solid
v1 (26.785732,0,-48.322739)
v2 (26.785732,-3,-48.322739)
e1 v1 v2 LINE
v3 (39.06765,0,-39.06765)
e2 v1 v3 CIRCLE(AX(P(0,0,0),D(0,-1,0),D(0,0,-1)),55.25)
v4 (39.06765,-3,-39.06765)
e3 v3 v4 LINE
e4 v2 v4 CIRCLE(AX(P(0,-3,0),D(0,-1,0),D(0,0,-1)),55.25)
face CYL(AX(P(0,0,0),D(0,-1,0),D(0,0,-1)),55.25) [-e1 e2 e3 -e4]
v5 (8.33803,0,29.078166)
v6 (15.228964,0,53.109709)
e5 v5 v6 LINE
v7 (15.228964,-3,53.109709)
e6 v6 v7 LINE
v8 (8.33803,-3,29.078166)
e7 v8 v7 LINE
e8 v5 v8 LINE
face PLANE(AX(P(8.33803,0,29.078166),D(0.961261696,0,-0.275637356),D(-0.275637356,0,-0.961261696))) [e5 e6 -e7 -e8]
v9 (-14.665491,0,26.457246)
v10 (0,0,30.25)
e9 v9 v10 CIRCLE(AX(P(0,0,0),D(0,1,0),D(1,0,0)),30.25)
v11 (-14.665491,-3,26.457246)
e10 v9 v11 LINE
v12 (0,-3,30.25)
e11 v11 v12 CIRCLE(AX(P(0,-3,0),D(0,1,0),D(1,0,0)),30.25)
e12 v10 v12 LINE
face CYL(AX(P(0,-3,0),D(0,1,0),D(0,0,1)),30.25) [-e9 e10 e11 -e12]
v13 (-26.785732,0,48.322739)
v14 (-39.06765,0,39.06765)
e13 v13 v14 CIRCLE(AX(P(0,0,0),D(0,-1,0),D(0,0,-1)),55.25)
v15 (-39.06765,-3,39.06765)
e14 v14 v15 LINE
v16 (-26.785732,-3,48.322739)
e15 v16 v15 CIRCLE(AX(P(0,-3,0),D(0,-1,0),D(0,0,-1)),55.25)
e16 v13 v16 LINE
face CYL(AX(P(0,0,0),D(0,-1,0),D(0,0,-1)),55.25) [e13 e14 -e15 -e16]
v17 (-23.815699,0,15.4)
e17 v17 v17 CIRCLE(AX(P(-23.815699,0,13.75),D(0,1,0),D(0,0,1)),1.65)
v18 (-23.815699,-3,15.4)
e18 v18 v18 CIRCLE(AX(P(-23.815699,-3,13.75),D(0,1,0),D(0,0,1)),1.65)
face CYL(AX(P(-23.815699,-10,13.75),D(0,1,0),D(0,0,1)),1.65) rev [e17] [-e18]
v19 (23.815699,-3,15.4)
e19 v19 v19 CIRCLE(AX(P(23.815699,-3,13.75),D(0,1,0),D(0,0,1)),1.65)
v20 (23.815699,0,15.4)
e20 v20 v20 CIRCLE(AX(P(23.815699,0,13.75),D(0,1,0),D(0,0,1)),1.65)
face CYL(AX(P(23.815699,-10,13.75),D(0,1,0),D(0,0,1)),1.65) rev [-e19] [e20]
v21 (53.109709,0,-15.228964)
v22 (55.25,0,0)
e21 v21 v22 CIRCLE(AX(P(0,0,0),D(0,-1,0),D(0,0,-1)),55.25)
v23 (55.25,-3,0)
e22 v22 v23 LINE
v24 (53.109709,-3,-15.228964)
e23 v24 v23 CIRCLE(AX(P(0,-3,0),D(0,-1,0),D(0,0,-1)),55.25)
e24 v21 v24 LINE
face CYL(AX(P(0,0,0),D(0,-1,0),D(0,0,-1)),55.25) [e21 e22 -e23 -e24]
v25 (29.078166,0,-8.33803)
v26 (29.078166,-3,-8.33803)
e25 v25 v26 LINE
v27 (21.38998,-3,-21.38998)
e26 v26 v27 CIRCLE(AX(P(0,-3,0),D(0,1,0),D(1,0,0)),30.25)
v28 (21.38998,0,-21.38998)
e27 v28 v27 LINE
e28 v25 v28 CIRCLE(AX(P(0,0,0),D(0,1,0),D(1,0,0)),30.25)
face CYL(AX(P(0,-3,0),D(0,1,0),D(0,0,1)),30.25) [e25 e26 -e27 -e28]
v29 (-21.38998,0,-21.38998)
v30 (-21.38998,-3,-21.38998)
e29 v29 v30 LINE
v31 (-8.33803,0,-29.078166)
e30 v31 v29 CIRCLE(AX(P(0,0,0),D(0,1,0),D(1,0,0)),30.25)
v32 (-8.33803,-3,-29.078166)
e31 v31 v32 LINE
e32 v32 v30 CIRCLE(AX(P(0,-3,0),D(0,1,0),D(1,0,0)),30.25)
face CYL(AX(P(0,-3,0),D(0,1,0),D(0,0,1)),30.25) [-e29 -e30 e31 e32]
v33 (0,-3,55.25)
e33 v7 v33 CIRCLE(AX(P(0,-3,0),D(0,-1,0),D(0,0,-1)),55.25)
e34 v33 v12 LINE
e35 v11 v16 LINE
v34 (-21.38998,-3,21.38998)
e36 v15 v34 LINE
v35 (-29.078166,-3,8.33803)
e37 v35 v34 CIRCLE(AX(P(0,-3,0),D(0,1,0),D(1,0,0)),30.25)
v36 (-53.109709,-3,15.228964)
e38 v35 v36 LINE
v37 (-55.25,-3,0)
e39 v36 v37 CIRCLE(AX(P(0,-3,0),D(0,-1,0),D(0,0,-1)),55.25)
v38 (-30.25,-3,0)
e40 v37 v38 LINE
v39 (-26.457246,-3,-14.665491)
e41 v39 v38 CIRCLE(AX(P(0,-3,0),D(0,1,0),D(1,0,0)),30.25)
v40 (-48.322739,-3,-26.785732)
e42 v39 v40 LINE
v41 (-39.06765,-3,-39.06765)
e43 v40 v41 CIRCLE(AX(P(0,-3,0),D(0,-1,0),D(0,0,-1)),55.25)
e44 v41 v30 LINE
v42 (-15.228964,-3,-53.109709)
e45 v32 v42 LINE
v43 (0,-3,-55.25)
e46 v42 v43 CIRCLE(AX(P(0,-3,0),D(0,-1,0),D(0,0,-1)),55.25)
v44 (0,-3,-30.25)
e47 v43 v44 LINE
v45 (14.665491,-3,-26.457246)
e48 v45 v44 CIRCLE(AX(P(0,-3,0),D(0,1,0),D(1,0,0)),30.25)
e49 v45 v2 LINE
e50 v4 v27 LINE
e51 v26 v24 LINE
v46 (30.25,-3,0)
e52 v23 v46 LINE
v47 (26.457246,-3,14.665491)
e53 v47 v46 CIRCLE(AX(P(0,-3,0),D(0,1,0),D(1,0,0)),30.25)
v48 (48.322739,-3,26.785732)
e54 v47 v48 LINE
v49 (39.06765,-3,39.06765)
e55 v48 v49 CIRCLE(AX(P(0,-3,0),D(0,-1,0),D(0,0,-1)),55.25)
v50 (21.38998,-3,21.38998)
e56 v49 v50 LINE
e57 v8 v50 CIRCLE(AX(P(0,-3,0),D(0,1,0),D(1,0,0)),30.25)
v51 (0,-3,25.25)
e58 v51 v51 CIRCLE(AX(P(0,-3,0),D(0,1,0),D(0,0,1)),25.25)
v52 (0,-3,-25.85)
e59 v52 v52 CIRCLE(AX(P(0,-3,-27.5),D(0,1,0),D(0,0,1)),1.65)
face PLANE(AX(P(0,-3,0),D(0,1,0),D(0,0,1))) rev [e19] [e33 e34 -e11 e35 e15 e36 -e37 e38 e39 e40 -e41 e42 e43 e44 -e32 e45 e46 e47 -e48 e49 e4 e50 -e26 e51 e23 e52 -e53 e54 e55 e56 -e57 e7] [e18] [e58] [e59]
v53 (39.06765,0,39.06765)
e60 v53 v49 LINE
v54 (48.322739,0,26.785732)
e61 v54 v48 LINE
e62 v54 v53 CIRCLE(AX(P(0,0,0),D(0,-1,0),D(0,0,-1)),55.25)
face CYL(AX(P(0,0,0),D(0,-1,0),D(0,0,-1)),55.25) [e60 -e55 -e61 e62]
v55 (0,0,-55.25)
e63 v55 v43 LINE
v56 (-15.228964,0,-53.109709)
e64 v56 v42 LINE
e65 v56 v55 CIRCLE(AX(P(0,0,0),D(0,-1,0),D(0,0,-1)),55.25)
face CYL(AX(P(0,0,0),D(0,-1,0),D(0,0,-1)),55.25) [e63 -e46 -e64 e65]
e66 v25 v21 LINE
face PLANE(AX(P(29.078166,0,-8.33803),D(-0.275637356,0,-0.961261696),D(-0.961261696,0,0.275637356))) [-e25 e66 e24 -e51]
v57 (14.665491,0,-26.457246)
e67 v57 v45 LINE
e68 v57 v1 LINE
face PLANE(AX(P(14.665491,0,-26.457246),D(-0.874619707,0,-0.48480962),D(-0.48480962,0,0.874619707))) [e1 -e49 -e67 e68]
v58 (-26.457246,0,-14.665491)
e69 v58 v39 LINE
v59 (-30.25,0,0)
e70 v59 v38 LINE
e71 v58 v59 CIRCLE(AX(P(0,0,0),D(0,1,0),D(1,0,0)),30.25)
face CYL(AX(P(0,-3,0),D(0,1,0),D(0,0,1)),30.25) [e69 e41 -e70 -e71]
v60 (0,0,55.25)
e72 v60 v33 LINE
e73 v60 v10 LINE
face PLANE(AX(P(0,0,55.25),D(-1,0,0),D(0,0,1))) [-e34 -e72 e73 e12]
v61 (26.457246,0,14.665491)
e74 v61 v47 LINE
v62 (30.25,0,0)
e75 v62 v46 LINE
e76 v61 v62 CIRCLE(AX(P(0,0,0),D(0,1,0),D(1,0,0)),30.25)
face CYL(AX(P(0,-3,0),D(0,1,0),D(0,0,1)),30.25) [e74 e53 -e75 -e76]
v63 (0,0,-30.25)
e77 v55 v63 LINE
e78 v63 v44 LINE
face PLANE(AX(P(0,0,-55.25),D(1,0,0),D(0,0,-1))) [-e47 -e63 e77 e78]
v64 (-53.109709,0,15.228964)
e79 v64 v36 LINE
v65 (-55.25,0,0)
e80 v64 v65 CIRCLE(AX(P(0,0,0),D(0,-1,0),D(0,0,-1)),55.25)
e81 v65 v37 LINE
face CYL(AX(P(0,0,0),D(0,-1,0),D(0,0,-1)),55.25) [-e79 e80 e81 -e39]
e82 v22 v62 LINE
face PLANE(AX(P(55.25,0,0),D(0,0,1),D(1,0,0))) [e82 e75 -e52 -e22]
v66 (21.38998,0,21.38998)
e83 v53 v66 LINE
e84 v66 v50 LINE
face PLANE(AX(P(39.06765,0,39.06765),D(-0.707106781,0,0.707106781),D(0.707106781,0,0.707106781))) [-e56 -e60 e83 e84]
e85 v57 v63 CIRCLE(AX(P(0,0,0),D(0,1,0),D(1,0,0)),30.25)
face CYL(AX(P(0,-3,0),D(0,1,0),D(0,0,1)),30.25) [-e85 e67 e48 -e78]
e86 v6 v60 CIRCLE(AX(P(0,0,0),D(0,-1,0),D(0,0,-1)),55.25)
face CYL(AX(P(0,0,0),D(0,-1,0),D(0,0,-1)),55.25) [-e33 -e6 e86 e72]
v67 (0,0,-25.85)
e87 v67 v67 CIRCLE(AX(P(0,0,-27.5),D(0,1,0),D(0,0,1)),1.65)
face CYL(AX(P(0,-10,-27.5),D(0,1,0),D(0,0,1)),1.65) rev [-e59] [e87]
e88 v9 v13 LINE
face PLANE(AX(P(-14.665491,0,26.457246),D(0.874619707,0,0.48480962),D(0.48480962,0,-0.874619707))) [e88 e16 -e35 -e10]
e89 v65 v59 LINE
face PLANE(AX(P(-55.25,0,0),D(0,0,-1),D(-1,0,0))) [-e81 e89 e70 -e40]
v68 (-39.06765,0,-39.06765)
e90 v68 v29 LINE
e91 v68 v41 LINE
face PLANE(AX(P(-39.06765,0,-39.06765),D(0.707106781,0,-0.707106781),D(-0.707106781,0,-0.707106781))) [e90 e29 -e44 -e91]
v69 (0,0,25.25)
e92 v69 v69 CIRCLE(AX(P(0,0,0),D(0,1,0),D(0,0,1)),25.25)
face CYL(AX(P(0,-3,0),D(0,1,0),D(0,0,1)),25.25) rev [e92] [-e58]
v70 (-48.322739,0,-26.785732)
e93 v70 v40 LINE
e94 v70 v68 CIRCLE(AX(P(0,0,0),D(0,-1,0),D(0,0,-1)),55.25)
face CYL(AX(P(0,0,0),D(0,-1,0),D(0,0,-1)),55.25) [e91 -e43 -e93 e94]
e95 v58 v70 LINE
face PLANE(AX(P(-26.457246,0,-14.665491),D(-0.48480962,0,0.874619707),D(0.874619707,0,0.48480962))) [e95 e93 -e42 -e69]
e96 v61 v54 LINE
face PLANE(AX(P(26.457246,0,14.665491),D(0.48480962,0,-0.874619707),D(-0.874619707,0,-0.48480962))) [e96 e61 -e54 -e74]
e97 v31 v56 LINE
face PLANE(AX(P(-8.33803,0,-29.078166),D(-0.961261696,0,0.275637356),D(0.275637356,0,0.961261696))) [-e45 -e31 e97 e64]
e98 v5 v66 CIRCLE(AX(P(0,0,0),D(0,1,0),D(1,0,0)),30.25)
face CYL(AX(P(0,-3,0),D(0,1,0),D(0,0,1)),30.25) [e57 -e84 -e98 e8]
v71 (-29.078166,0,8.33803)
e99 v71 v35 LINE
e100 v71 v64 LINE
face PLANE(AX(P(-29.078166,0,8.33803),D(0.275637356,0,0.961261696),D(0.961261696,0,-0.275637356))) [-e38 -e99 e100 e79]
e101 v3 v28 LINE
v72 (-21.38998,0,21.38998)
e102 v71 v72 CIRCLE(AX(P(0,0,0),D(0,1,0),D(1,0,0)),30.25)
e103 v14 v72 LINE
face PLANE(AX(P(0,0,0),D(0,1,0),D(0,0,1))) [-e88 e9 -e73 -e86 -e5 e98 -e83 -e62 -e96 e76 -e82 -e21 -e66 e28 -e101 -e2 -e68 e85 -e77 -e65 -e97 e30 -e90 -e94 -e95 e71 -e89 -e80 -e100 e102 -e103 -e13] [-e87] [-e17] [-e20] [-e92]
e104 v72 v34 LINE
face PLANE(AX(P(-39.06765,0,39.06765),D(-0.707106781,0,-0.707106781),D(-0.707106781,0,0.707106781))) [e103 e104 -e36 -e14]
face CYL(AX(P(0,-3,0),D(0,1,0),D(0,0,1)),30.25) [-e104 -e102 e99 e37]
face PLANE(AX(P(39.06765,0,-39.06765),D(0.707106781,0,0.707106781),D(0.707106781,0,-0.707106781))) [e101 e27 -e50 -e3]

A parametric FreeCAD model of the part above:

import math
import FreeCAD as App
import Part
import Sketcher

V = App.Vector
Q = App.Units.Quantity

doc = App.newDocument("Part")
params = doc.addObject("Spreadsheet::Sheet", "Params")
for row, (alias, value) in enumerate([
    ("sketch1_diameter", "60.5 mm"),
    ("sketch1_diameter2", "50.5 mm"),
    ("pad1_length", "3 mm"),
    ("sketch2_diameter", "3.3 mm"),
    ("pocket1_length", "10 mm"),
    ("sketch3_width", "25 mm"),
    ("sketch3_radius", "30.25 mm"),
    ("pad2_length", "3 mm"),
], start=1):
    params.set(f"A{row}", alias)
    params.set(f"B{row}", "=" + value)
    params.setAlias(f"B{row}", alias)

body = doc.addObject("PartDesign::Body", "Body")

# Sketch on XZ plane
sketch1 = doc.addObject("Sketcher::SketchObject", "Sketch")
body.addObject(sketch1)
sketch1.AttachmentSupport = (doc.XZ_Plane, [""])
sketch1.MapMode = "FlatFace"
sketch1.addGeometry([
    Part.Circle(V(0, 0, 0), V(0, 0, 1), 30),
    Part.Circle(V(0, 0, 0), V(0, 0, 1), 25),
], False)
sketch1.addConstraint([
    Sketcher.Constraint("Coincident", 0, 3, -1, 1),
    Sketcher.Constraint("Coincident", 1, 3, -1, 1),
    Sketcher.Constraint("Diameter", 0, 60.5),
    Sketcher.Constraint("Diameter", 1, 50.5),
])
sketch1.setExpression("Constraints[2]", "Params.sketch1_diameter")
sketch1.setExpression("Constraints[3]", "Params.sketch1_diameter2")
pad1 = doc.addObject("PartDesign::Pad", "Pad")
body.addObject(pad1)
pad1.Profile = sketch1
pad1.setExpression("Length", "Params.pad1_length")

# Sketch on XZ plane
sketch2 = doc.addObject("Sketcher::SketchObject", "Sketch001")
body.addObject(sketch2)
sketch2.AttachmentSupport = (doc.XZ_Plane, [""])
sketch2.MapMode = "FlatFace"
sketch2.addGeometry([
    Part.Circle(V(0, -27.5, 0), V(0, 0, 1), 1.6),
    Part.Circle(V(23.8, 13.8, 0), V(0, 0, 1), 1.6),
    Part.Circle(V(-23.8, 13.8, 0), V(0, 0, 1), 1.6),
], False)
sketch2.addConstraint([
    Sketcher.Constraint("Equal", 0, 1),
    Sketcher.Constraint("Equal", 1, 2),
    Sketcher.Constraint("Symmetric", 1, 3, 2, 3, -2),
    Sketcher.Constraint("PointOnObject", 0, 3, -2),
    Sketcher.Constraint("Diameter", 0, 3.3),
    Sketcher.Constraint("DistanceY", 0, 3, -1, 1, 27.5),
    Sketcher.Constraint("DistanceY", -1, 1, 1, 3, 13.75),
    Sketcher.Constraint("DistanceX", -1, 1, 1, 3, 23.815699),
])
sketch2.setExpression("Constraints[4]", "Params.sketch2_diameter")
pocket1 = doc.addObject("PartDesign::Pocket", "Pocket")
body.addObject(pocket1)
pocket1.Profile = sketch2
pocket1.setExpression("Length", "Params.pocket1_length")
pocket1.Reversed = True

# Sketch on XZ plane
sketch3 = doc.addObject("Sketcher::SketchObject", "Sketch002")
body.addObject(sketch3)
sketch3.AttachmentSupport = (doc.XZ_Plane, [""])
sketch3.MapMode = "FlatFace"
sketch3.AttachmentOffset = App.Placement(V(0, 0, 3), App.Rotation())
sketch3.addGeometry([
    Part.LineSegment(V(0, 55, 0), V(0, 30, 0)),  # 0
    Part.ArcOfCircle(Part.Circle(V(0, 0, 0), V(0, 0, 1), 30), math.radians(74), math.radians(90)),  # 1
    Part.LineSegment(V(8, 29, 0), V(15, 53, 0)),  # 2
    Part.ArcOfCircle(Part.Circle(V(0, 0, 0), V(0, 0, 1), 55), math.radians(74), math.radians(90)),  # 3
    Part.LineSegment(V(39, 39, 0), V(21, 21, 0)),  # 4
    Part.ArcOfCircle(Part.Circle(V(0, 0, 0), V(0, 0, 1), 30), math.radians(29), math.radians(45)),  # 5
    Part.LineSegment(V(26, 15, 0), V(48, 27, 0)),  # 6
    Part.ArcOfCircle(Part.Circle(V(0, 0, 0), V(0, 0, 1), 55), math.radians(29), math.radians(45)),  # 7
    Part.LineSegment(V(55, 0, 0), V(30, 0, 0)),  # 8
    Part.ArcOfCircle(Part.Circle(V(0, 0, 0), V(0, 0, 1), 30), math.radians(-16), math.radians(0)),  # 9
    Part.LineSegment(V(29, -8, 0), V(53, -15, 0)),  # 10
    Part.ArcOfCircle(Part.Circle(V(0, 0, 0), V(0, 0, 1), 55), math.radians(-16), math.radians(0)),  # 11
    Part.LineSegment(V(39, -39, 0), V(21, -21, 0)),  # 12
    Part.ArcOfCircle(Part.Circle(V(0, 0, 0), V(0, 0, 1), 30), math.radians(-61), math.radians(-45)),  # 13
    Part.LineSegment(V(15, -26, 0), V(27, -48, 0)),  # 14
    Part.ArcOfCircle(Part.Circle(V(0, 0, 0), V(0, 0, 1), 55), math.radians(-61), math.radians(-45)),  # 15
    Part.LineSegment(V(0, -55, 0), V(0, -30, 0)),  # 16
    Part.ArcOfCircle(Part.Circle(V(0, 0, 0), V(0, 0, 1), 30), math.radians(-106), math.radians(-90)),  # 17
    Part.LineSegment(V(-8, -29, 0), V(-15, -53, 0)),  # 18
    Part.ArcOfCircle(Part.Circle(V(0, 0, 0), V(0, 0, 1), 55), math.radians(-106), math.radians(-90)),  # 19
    Part.LineSegment(V(-39, -39, 0), V(-21, -21, 0)),  # 20
    Part.ArcOfCircle(Part.Circle(V(0, 0, 0), V(0, 0, 1), 30), math.radians(-151), math.radians(-135)),  # 21
    Part.LineSegment(V(-26, -15, 0), V(-48, -27, 0)),  # 22
    Part.ArcOfCircle(Part.Circle(V(0, 0, 0), V(0, 0, 1), 55), math.radians(-151), math.radians(-135)),  # 23
    Part.LineSegment(V(-55, 0, 0), V(-30, 0, 0)),  # 24
    Part.ArcOfCircle(Part.Circle(V(0, 0, 0), V(0, 0, 1), 30), math.radians(164), math.radians(180)),  # 25
    Part.LineSegment(V(-29, 8, 0), V(-53, 15, 0)),  # 26
    Part.ArcOfCircle(Part.Circle(V(0, 0, 0), V(0, 0, 1), 55), math.radians(164), math.radians(180)),  # 27
    Part.LineSegment(V(-39, 39, 0), V(-21, 21, 0)),  # 28
    Part.ArcOfCircle(Part.Circle(V(0, 0, 0), V(0, 0, 1), 30), math.radians(119), math.radians(135)),  # 29
    Part.LineSegment(V(-15, 26, 0), V(-27, 48, 0)),  # 30
    Part.ArcOfCircle(Part.Circle(V(0, 0, 0), V(0, 0, 1), 55), math.radians(119), math.radians(135)),  # 31
], False)
sketch3.addConstraint([
    Sketcher.Constraint("Coincident", 0, 2, 1, 2),
    Sketcher.Constraint("Coincident", 1, 1, 2, 1),
    Sketcher.Constraint("Coincident", 2, 2, 3, 1),
    Sketcher.Constraint("Coincident", 3, 2, 0, 1),
    Sketcher.Constraint("Coincident", 4, 2, 5, 2),
    Sketcher.Constraint("Coincident", 5, 1, 6, 1),
    Sketcher.Constraint("Coincident", 6, 2, 7, 1),
    Sketcher.Constraint("Coincident", 7, 2, 4, 1),
    Sketcher.Constraint("Coincident", 8, 2, 9, 2),
    Sketcher.Constraint("Coincident", 9, 1, 10, 1),
    Sketcher.Constraint("Coincident", 10, 2, 11, 1),
    Sketcher.Constraint("Coincident", 11, 2, 8, 1),
    Sketcher.Constraint("Coincident", 12, 2, 13, 2),
    Sketcher.Constraint("Coincident", 13, 1, 14, 1),
    Sketcher.Constraint("Coincident", 14, 2, 15, 1),
    Sketcher.Constraint("Coincident", 15, 2, 12, 1),
    Sketcher.Constraint("Coincident", 16, 2, 17, 2),
    Sketcher.Constraint("Coincident", 17, 1, 18, 1),
    Sketcher.Constraint("Coincident", 18, 2, 19, 1),
    Sketcher.Constraint("Coincident", 19, 2, 16, 1),
    Sketcher.Constraint("Coincident", 20, 2, 21, 2),
    Sketcher.Constraint("Coincident", 21, 1, 22, 1),
    Sketcher.Constraint("Coincident", 22, 2, 23, 1),
    Sketcher.Constraint("Coincident", 23, 2, 20, 1),
    Sketcher.Constraint("Coincident", 24, 2, 25, 2),
    Sketcher.Constraint("Coincident", 25, 1, 26, 1),
    Sketcher.Constraint("Coincident", 26, 2, 27, 1),
    Sketcher.Constraint("Coincident", 27, 2, 24, 1),
    Sketcher.Constraint("Coincident", 28, 2, 29, 2),
    Sketcher.Constraint("Coincident", 29, 1, 30, 1),
    Sketcher.Constraint("Coincident", 30, 2, 31, 1),
    Sketcher.Constraint("Coincident", 31, 2, 28, 1),
    Sketcher.Constraint("Vertical", 0),
    Sketcher.Constraint("Horizontal", 8),
    Sketcher.Constraint("Vertical", 16),
    Sketcher.Constraint("Horizontal", 24),
    Sketcher.Constraint("Coincident", 1, 3, -1, 1),
    Sketcher.Constraint("Coincident", 3, 3, -1, 1),
    Sketcher.Constraint("Coincident", 5, 3, -1, 1),
    Sketcher.Constraint("Coincident", 7, 3, -1, 1),
    Sketcher.Constraint("Coincident", 9, 3, -1, 1),
    Sketcher.Constraint("Coincident", 11, 3, -1, 1),
    Sketcher.Constraint("Coincident", 13, 3, -1, 1),
    Sketcher.Constraint("Coincident", 15, 3, -1, 1),
    Sketcher.Constraint("Coincident", 17, 3, -1, 1),
    Sketcher.Constraint("Coincident", 19, 3, -1, 1),
    Sketcher.Constraint("Coincident", 21, 3, -1, 1),
    Sketcher.Constraint("Coincident", 23, 3, -1, 1),
    Sketcher.Constraint("Coincident", 25, 3, -1, 1),
    Sketcher.Constraint("Coincident", 27, 3, -1, 1),
    Sketcher.Constraint("Coincident", 29, 3, -1, 1),
    Sketcher.Constraint("Coincident", 31, 3, -1, 1),
    Sketcher.Constraint("Equal", 1, 5),
    Sketcher.Constraint("Equal", 3, 7),
    Sketcher.Constraint("Equal", 5, 9),
    Sketcher.Constraint("Equal", 7, 11),
    Sketcher.Constraint("Equal", 9, 13),
    Sketcher.Constraint("Equal", 11, 15),
    Sketcher.Constraint("Equal", 13, 17),
    Sketcher.Constraint("Equal", 15, 19),
    Sketcher.Constraint("Equal", 17, 21),
    Sketcher.Constraint("Equal", 19, 23),
    Sketcher.Constraint("Equal", 21, 25),
    Sketcher.Constraint("Equal", 23, 27),
    Sketcher.Constraint("Equal", 25, 29),
    Sketcher.Constraint("Equal", 27, 31),
    Sketcher.Constraint("PointOnObject", 0, 2, -2),
    Sketcher.Constraint("PointOnObject", 8, 2, -1),
    Sketcher.Constraint("PointOnObject", 16, 2, -2),
    Sketcher.Constraint("PointOnObject", 24, 2, -1),
    Sketcher.Constraint("Perpendicular", 2, 10),
    Sketcher.Constraint("Perpendicular", 4, 12),
    Sketcher.Constraint("Perpendicular", 6, 14),
    Sketcher.Constraint("Perpendicular", 10, 18),
    Sketcher.Constraint("Perpendicular", 12, 20),
    Sketcher.Constraint("Perpendicular", 14, 22),
    Sketcher.Constraint("Perpendicular", 18, 26),
    Sketcher.Constraint("Perpendicular", 20, 28),
    Sketcher.Constraint("Perpendicular", 22, 30),
    Sketcher.Constraint("Horizontal", 12, 2, 20, 2),
    Sketcher.Constraint("Horizontal", 15, 2, 23, 2),
    Sketcher.Constraint("Horizontal", 4, 2, 28, 2),
    Sketcher.Constraint("Vertical", 4, 2, 12, 2),
    Sketcher.Constraint("DistanceX", 8, 2, 8, 1, 25.0),
    Sketcher.Constraint("Angle", 2, Q("74 deg")),
    Sketcher.Constraint("Angle", 6, Q("29 deg")),
    Sketcher.Constraint("Radius", 1, 30.25),
    Sketcher.Constraint("DistanceX", -1, 1, 1, 1, 8.33803),
    Sketcher.Constraint("DistanceX", -1, 1, 4, 2, 21.38998),
    Sketcher.Constraint("DistanceY", -1, 1, 5, 1, 14.665491),
    Sketcher.Constraint("DistanceY", 9, 1, -1, 1, 8.33803),
    Sketcher.Constraint("DistanceX", -1, 1, 13, 1, 14.665491),
    Sketcher.Constraint("DistanceX", 17, 1, -1, 1, 8.33803),
    Sketcher.Constraint("DistanceY", 21, 1, -1, 1, 14.665491),
    Sketcher.Constraint("DistanceY", -1, 1, 25, 1, 8.33803),
    Sketcher.Constraint("DistanceX", 29, 1, -1, 1, 14.665491),
])
sketch3.setExpression("Constraints[83]", "Params.sketch3_width")
sketch3.setExpression("Constraints[86]", "Params.sketch3_radius")
pad2 = doc.addObject("PartDesign::Pad", "Pad001")
body.addObject(pad2)
pad2.Profile = sketch3
pad2.setExpression("Length", "Params.pad2_length")
pad2.Reversed = True

doc.recompute()
